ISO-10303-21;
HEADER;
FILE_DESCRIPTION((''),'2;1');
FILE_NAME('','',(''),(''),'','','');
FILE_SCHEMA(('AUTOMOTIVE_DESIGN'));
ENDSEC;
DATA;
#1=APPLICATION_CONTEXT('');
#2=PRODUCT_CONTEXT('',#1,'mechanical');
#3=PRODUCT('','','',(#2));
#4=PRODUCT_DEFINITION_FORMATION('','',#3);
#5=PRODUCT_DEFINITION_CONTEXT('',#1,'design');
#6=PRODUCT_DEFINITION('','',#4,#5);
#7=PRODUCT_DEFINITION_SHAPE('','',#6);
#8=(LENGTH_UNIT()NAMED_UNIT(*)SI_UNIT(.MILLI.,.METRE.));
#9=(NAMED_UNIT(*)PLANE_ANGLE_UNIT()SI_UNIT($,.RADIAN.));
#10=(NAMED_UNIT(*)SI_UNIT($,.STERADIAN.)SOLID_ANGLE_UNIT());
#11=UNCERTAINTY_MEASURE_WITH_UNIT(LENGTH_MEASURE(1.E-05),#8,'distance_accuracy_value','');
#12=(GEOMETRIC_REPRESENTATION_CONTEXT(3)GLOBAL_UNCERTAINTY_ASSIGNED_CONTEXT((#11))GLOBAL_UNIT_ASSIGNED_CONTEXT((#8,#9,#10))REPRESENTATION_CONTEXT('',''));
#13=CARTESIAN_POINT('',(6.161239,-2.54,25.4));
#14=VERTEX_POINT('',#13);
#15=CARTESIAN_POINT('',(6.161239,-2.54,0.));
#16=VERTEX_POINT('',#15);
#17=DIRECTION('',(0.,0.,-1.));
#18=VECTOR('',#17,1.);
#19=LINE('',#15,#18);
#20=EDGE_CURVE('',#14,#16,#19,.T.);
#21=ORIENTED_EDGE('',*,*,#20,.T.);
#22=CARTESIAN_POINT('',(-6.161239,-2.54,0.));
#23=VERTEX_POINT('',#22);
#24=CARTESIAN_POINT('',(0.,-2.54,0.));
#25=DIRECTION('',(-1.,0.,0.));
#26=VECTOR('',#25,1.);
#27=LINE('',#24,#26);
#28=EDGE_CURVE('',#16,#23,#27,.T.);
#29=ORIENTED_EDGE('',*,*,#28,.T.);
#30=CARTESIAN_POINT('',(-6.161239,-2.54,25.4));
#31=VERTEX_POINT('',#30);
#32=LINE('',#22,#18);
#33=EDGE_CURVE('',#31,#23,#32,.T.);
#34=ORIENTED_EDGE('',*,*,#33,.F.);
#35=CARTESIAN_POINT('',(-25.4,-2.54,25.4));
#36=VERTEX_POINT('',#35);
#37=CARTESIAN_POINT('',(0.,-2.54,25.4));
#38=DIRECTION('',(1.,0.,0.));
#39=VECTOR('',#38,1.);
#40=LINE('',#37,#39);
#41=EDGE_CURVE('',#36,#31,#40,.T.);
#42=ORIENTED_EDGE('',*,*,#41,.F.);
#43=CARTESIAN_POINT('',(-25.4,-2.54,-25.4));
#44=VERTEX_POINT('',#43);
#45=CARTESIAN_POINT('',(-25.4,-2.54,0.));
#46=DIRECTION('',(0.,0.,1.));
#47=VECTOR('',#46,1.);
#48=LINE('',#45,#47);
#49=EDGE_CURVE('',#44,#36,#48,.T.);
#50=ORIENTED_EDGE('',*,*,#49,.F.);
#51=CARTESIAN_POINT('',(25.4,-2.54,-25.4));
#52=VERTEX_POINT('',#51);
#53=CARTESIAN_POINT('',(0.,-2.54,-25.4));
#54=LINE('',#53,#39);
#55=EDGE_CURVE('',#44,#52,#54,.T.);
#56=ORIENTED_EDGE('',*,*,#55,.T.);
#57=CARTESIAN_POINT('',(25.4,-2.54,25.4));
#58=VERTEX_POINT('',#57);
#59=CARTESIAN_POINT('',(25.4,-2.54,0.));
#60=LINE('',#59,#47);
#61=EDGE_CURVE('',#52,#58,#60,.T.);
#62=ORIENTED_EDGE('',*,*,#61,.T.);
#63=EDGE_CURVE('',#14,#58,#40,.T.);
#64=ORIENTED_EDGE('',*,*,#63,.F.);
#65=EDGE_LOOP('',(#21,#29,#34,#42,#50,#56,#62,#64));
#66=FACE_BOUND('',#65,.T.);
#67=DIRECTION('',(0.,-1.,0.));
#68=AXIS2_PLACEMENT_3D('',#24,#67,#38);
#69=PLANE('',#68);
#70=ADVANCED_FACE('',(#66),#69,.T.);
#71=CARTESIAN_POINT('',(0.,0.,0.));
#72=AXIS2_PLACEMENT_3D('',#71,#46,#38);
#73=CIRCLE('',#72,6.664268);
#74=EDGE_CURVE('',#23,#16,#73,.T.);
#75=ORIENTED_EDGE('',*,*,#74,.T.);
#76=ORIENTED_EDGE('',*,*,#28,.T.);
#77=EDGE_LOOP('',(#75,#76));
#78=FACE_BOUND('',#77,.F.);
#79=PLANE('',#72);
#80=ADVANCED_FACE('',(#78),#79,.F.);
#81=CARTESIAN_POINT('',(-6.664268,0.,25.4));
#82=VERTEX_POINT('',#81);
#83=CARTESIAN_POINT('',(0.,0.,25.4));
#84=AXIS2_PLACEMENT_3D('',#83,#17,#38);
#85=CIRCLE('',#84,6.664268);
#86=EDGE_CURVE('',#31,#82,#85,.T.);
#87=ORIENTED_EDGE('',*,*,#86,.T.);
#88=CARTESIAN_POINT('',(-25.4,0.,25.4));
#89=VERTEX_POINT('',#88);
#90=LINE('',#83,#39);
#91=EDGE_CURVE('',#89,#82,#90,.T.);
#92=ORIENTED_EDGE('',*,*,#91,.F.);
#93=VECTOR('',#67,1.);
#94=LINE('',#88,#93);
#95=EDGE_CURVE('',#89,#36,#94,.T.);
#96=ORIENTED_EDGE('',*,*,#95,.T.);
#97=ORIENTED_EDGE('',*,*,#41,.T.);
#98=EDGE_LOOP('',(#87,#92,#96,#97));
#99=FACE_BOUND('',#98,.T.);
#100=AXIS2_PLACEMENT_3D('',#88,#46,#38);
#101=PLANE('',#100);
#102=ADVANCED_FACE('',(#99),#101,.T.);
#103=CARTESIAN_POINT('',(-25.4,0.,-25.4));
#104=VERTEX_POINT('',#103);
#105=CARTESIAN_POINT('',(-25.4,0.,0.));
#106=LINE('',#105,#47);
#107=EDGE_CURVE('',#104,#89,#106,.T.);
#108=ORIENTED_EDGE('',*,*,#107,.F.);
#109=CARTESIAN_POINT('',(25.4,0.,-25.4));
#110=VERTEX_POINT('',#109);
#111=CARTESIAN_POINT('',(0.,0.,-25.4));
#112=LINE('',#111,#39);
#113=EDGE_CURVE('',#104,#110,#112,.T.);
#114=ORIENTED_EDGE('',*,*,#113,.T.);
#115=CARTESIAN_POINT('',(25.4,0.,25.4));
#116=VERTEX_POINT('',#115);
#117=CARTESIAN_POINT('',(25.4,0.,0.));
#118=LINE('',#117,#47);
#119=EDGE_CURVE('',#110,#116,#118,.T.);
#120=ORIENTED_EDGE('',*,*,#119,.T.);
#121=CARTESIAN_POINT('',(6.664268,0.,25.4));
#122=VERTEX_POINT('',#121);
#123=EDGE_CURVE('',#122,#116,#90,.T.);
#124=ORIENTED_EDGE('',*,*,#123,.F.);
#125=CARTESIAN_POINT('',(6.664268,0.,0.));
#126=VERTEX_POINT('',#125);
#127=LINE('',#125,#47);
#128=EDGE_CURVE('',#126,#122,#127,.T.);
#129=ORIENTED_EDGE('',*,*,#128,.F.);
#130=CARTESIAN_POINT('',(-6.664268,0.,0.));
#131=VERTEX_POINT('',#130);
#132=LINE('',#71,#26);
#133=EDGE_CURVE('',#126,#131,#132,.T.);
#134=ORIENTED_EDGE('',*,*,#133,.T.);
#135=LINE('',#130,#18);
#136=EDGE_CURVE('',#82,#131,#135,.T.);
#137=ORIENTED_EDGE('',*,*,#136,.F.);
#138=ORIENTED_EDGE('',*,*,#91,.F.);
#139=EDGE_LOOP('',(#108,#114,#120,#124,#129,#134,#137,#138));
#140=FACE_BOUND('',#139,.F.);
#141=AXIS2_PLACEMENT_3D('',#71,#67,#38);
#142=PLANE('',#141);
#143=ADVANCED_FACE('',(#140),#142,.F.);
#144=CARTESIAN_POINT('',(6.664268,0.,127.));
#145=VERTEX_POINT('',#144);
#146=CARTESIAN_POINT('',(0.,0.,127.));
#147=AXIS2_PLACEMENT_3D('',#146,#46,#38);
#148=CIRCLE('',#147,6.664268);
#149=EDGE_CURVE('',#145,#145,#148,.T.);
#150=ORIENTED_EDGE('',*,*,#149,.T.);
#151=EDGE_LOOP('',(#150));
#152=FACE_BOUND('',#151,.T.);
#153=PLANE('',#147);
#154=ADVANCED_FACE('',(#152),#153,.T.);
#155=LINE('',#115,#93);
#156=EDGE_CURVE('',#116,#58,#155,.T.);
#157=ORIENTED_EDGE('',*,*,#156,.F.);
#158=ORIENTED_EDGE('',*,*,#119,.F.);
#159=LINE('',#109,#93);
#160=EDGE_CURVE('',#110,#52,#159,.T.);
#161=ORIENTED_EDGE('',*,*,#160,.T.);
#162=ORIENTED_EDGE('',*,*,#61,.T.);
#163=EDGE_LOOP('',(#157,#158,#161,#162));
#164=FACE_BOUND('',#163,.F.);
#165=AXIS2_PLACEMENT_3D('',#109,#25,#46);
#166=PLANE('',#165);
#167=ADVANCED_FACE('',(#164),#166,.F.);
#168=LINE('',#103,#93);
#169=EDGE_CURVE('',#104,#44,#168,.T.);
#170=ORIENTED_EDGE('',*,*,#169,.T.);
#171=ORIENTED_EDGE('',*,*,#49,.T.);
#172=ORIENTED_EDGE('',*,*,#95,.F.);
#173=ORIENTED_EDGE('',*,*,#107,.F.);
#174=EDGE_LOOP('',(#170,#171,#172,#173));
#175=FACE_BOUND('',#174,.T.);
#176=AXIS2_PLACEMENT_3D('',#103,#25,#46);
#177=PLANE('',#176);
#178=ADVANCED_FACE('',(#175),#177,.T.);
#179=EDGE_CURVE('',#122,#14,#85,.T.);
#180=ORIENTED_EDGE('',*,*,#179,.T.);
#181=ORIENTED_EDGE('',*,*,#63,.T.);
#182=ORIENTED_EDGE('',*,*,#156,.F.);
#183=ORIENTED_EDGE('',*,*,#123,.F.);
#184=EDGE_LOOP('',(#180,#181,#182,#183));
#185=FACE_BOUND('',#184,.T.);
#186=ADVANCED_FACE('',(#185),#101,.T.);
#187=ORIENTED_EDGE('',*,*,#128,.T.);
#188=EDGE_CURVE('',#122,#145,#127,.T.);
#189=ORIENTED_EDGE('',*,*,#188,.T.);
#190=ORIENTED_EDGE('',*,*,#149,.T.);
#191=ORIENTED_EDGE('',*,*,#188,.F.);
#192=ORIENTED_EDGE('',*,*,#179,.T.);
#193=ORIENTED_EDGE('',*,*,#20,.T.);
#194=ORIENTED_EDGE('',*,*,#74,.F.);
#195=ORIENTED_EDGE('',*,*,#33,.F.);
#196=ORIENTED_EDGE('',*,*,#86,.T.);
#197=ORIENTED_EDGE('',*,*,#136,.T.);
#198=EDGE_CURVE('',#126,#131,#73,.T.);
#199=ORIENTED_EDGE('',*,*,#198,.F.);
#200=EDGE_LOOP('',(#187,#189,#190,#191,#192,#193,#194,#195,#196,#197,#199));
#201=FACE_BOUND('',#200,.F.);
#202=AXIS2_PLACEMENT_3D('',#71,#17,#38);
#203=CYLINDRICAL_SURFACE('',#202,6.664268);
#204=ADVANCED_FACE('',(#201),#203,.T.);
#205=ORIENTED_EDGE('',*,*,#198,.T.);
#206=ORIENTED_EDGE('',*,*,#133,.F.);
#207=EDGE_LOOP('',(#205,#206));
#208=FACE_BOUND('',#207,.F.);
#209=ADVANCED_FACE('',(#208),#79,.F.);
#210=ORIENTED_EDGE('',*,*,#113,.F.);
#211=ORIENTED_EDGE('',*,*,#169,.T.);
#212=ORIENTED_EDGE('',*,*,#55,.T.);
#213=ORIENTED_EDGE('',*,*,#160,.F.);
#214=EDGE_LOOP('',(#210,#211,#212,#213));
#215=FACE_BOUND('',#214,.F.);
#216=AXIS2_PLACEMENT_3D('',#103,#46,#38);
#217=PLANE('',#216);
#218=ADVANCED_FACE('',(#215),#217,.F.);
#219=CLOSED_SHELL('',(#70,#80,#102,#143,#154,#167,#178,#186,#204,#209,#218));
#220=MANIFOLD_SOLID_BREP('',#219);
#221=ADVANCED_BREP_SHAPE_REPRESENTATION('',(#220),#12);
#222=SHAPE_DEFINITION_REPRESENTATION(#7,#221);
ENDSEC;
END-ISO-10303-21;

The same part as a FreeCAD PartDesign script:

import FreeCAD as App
import Part
import Sketcher

V = App.Vector
Q = App.Units.Quantity


def add_polygon(sketch, points):
    """Adds a closed chain of lines whose ends are joined by coincident constraints."""
    first, n = sketch.GeometryCount, len(points)
    for a, b in zip(points, points[1:] + points[:1]):
        sketch.addGeometry(Part.LineSegment(App.Vector(*a, 0), App.Vector(*b, 0)), False)
    for i in range(n):
        sketch.addConstraint(Sketcher.Constraint("Coincident", first + i, 2, first + (i + 1) % n, 1))

doc = App.newDocument("Part")
body = doc.addObject("PartDesign::Body", "Body")

# Sketch on XZ plane
sketch1 = body.newObject("Sketcher::SketchObject", "Sketch")
sketch1.AttachmentSupport = (doc.getObject("XZ_Plane"), [""])
sketch1.MapMode = "FlatFace"
add_polygon(sketch1, [(-25, 25), (-25, -25), (25, -25), (25, 25)])  # lines 0-3
sketch1.addConstraint([
    Sketcher.Constraint("Vertical", 0),
    Sketcher.Constraint("Horizontal", 1),
    Sketcher.Constraint("Vertical", 2),
    Sketcher.Constraint("Horizontal", 3),
    Sketcher.Constraint("Symmetric", 0, 2, 2, 2, -1, 1),
    Sketcher.Constraint("Equal", 3, 0),
    Sketcher.Constraint("DistanceX", 1, 1, 1, 2, Q("2 in")),
])
pad1 = body.newObject("PartDesign::Pad", "Pad")
pad1.Profile = sketch1
pad1.Length = Q("0.1 in")

# Sketch on XY plane
sketch2 = body.newObject("Sketcher::SketchObject", "Sketch001")
sketch2.AttachmentSupport = (doc.getObject("XY_Plane"), [""])
sketch2.MapMode = "FlatFace"
sketch2.addGeometry(Part.Circle(V(0, 0, 0), V(0, 0, 1), 7), False)
sketch2.addConstraint([
    Sketcher.Constraint("Coincident", 0, 3, -1, 1),
    Sketcher.Constraint("Diameter", 0, Q("13.328536 mm")),
])
pad2 = body.newObject("PartDesign::Pad", "Pad001")
pad2.Profile = sketch2
pad2.Length = Q("5 in")

doc.recompute()
